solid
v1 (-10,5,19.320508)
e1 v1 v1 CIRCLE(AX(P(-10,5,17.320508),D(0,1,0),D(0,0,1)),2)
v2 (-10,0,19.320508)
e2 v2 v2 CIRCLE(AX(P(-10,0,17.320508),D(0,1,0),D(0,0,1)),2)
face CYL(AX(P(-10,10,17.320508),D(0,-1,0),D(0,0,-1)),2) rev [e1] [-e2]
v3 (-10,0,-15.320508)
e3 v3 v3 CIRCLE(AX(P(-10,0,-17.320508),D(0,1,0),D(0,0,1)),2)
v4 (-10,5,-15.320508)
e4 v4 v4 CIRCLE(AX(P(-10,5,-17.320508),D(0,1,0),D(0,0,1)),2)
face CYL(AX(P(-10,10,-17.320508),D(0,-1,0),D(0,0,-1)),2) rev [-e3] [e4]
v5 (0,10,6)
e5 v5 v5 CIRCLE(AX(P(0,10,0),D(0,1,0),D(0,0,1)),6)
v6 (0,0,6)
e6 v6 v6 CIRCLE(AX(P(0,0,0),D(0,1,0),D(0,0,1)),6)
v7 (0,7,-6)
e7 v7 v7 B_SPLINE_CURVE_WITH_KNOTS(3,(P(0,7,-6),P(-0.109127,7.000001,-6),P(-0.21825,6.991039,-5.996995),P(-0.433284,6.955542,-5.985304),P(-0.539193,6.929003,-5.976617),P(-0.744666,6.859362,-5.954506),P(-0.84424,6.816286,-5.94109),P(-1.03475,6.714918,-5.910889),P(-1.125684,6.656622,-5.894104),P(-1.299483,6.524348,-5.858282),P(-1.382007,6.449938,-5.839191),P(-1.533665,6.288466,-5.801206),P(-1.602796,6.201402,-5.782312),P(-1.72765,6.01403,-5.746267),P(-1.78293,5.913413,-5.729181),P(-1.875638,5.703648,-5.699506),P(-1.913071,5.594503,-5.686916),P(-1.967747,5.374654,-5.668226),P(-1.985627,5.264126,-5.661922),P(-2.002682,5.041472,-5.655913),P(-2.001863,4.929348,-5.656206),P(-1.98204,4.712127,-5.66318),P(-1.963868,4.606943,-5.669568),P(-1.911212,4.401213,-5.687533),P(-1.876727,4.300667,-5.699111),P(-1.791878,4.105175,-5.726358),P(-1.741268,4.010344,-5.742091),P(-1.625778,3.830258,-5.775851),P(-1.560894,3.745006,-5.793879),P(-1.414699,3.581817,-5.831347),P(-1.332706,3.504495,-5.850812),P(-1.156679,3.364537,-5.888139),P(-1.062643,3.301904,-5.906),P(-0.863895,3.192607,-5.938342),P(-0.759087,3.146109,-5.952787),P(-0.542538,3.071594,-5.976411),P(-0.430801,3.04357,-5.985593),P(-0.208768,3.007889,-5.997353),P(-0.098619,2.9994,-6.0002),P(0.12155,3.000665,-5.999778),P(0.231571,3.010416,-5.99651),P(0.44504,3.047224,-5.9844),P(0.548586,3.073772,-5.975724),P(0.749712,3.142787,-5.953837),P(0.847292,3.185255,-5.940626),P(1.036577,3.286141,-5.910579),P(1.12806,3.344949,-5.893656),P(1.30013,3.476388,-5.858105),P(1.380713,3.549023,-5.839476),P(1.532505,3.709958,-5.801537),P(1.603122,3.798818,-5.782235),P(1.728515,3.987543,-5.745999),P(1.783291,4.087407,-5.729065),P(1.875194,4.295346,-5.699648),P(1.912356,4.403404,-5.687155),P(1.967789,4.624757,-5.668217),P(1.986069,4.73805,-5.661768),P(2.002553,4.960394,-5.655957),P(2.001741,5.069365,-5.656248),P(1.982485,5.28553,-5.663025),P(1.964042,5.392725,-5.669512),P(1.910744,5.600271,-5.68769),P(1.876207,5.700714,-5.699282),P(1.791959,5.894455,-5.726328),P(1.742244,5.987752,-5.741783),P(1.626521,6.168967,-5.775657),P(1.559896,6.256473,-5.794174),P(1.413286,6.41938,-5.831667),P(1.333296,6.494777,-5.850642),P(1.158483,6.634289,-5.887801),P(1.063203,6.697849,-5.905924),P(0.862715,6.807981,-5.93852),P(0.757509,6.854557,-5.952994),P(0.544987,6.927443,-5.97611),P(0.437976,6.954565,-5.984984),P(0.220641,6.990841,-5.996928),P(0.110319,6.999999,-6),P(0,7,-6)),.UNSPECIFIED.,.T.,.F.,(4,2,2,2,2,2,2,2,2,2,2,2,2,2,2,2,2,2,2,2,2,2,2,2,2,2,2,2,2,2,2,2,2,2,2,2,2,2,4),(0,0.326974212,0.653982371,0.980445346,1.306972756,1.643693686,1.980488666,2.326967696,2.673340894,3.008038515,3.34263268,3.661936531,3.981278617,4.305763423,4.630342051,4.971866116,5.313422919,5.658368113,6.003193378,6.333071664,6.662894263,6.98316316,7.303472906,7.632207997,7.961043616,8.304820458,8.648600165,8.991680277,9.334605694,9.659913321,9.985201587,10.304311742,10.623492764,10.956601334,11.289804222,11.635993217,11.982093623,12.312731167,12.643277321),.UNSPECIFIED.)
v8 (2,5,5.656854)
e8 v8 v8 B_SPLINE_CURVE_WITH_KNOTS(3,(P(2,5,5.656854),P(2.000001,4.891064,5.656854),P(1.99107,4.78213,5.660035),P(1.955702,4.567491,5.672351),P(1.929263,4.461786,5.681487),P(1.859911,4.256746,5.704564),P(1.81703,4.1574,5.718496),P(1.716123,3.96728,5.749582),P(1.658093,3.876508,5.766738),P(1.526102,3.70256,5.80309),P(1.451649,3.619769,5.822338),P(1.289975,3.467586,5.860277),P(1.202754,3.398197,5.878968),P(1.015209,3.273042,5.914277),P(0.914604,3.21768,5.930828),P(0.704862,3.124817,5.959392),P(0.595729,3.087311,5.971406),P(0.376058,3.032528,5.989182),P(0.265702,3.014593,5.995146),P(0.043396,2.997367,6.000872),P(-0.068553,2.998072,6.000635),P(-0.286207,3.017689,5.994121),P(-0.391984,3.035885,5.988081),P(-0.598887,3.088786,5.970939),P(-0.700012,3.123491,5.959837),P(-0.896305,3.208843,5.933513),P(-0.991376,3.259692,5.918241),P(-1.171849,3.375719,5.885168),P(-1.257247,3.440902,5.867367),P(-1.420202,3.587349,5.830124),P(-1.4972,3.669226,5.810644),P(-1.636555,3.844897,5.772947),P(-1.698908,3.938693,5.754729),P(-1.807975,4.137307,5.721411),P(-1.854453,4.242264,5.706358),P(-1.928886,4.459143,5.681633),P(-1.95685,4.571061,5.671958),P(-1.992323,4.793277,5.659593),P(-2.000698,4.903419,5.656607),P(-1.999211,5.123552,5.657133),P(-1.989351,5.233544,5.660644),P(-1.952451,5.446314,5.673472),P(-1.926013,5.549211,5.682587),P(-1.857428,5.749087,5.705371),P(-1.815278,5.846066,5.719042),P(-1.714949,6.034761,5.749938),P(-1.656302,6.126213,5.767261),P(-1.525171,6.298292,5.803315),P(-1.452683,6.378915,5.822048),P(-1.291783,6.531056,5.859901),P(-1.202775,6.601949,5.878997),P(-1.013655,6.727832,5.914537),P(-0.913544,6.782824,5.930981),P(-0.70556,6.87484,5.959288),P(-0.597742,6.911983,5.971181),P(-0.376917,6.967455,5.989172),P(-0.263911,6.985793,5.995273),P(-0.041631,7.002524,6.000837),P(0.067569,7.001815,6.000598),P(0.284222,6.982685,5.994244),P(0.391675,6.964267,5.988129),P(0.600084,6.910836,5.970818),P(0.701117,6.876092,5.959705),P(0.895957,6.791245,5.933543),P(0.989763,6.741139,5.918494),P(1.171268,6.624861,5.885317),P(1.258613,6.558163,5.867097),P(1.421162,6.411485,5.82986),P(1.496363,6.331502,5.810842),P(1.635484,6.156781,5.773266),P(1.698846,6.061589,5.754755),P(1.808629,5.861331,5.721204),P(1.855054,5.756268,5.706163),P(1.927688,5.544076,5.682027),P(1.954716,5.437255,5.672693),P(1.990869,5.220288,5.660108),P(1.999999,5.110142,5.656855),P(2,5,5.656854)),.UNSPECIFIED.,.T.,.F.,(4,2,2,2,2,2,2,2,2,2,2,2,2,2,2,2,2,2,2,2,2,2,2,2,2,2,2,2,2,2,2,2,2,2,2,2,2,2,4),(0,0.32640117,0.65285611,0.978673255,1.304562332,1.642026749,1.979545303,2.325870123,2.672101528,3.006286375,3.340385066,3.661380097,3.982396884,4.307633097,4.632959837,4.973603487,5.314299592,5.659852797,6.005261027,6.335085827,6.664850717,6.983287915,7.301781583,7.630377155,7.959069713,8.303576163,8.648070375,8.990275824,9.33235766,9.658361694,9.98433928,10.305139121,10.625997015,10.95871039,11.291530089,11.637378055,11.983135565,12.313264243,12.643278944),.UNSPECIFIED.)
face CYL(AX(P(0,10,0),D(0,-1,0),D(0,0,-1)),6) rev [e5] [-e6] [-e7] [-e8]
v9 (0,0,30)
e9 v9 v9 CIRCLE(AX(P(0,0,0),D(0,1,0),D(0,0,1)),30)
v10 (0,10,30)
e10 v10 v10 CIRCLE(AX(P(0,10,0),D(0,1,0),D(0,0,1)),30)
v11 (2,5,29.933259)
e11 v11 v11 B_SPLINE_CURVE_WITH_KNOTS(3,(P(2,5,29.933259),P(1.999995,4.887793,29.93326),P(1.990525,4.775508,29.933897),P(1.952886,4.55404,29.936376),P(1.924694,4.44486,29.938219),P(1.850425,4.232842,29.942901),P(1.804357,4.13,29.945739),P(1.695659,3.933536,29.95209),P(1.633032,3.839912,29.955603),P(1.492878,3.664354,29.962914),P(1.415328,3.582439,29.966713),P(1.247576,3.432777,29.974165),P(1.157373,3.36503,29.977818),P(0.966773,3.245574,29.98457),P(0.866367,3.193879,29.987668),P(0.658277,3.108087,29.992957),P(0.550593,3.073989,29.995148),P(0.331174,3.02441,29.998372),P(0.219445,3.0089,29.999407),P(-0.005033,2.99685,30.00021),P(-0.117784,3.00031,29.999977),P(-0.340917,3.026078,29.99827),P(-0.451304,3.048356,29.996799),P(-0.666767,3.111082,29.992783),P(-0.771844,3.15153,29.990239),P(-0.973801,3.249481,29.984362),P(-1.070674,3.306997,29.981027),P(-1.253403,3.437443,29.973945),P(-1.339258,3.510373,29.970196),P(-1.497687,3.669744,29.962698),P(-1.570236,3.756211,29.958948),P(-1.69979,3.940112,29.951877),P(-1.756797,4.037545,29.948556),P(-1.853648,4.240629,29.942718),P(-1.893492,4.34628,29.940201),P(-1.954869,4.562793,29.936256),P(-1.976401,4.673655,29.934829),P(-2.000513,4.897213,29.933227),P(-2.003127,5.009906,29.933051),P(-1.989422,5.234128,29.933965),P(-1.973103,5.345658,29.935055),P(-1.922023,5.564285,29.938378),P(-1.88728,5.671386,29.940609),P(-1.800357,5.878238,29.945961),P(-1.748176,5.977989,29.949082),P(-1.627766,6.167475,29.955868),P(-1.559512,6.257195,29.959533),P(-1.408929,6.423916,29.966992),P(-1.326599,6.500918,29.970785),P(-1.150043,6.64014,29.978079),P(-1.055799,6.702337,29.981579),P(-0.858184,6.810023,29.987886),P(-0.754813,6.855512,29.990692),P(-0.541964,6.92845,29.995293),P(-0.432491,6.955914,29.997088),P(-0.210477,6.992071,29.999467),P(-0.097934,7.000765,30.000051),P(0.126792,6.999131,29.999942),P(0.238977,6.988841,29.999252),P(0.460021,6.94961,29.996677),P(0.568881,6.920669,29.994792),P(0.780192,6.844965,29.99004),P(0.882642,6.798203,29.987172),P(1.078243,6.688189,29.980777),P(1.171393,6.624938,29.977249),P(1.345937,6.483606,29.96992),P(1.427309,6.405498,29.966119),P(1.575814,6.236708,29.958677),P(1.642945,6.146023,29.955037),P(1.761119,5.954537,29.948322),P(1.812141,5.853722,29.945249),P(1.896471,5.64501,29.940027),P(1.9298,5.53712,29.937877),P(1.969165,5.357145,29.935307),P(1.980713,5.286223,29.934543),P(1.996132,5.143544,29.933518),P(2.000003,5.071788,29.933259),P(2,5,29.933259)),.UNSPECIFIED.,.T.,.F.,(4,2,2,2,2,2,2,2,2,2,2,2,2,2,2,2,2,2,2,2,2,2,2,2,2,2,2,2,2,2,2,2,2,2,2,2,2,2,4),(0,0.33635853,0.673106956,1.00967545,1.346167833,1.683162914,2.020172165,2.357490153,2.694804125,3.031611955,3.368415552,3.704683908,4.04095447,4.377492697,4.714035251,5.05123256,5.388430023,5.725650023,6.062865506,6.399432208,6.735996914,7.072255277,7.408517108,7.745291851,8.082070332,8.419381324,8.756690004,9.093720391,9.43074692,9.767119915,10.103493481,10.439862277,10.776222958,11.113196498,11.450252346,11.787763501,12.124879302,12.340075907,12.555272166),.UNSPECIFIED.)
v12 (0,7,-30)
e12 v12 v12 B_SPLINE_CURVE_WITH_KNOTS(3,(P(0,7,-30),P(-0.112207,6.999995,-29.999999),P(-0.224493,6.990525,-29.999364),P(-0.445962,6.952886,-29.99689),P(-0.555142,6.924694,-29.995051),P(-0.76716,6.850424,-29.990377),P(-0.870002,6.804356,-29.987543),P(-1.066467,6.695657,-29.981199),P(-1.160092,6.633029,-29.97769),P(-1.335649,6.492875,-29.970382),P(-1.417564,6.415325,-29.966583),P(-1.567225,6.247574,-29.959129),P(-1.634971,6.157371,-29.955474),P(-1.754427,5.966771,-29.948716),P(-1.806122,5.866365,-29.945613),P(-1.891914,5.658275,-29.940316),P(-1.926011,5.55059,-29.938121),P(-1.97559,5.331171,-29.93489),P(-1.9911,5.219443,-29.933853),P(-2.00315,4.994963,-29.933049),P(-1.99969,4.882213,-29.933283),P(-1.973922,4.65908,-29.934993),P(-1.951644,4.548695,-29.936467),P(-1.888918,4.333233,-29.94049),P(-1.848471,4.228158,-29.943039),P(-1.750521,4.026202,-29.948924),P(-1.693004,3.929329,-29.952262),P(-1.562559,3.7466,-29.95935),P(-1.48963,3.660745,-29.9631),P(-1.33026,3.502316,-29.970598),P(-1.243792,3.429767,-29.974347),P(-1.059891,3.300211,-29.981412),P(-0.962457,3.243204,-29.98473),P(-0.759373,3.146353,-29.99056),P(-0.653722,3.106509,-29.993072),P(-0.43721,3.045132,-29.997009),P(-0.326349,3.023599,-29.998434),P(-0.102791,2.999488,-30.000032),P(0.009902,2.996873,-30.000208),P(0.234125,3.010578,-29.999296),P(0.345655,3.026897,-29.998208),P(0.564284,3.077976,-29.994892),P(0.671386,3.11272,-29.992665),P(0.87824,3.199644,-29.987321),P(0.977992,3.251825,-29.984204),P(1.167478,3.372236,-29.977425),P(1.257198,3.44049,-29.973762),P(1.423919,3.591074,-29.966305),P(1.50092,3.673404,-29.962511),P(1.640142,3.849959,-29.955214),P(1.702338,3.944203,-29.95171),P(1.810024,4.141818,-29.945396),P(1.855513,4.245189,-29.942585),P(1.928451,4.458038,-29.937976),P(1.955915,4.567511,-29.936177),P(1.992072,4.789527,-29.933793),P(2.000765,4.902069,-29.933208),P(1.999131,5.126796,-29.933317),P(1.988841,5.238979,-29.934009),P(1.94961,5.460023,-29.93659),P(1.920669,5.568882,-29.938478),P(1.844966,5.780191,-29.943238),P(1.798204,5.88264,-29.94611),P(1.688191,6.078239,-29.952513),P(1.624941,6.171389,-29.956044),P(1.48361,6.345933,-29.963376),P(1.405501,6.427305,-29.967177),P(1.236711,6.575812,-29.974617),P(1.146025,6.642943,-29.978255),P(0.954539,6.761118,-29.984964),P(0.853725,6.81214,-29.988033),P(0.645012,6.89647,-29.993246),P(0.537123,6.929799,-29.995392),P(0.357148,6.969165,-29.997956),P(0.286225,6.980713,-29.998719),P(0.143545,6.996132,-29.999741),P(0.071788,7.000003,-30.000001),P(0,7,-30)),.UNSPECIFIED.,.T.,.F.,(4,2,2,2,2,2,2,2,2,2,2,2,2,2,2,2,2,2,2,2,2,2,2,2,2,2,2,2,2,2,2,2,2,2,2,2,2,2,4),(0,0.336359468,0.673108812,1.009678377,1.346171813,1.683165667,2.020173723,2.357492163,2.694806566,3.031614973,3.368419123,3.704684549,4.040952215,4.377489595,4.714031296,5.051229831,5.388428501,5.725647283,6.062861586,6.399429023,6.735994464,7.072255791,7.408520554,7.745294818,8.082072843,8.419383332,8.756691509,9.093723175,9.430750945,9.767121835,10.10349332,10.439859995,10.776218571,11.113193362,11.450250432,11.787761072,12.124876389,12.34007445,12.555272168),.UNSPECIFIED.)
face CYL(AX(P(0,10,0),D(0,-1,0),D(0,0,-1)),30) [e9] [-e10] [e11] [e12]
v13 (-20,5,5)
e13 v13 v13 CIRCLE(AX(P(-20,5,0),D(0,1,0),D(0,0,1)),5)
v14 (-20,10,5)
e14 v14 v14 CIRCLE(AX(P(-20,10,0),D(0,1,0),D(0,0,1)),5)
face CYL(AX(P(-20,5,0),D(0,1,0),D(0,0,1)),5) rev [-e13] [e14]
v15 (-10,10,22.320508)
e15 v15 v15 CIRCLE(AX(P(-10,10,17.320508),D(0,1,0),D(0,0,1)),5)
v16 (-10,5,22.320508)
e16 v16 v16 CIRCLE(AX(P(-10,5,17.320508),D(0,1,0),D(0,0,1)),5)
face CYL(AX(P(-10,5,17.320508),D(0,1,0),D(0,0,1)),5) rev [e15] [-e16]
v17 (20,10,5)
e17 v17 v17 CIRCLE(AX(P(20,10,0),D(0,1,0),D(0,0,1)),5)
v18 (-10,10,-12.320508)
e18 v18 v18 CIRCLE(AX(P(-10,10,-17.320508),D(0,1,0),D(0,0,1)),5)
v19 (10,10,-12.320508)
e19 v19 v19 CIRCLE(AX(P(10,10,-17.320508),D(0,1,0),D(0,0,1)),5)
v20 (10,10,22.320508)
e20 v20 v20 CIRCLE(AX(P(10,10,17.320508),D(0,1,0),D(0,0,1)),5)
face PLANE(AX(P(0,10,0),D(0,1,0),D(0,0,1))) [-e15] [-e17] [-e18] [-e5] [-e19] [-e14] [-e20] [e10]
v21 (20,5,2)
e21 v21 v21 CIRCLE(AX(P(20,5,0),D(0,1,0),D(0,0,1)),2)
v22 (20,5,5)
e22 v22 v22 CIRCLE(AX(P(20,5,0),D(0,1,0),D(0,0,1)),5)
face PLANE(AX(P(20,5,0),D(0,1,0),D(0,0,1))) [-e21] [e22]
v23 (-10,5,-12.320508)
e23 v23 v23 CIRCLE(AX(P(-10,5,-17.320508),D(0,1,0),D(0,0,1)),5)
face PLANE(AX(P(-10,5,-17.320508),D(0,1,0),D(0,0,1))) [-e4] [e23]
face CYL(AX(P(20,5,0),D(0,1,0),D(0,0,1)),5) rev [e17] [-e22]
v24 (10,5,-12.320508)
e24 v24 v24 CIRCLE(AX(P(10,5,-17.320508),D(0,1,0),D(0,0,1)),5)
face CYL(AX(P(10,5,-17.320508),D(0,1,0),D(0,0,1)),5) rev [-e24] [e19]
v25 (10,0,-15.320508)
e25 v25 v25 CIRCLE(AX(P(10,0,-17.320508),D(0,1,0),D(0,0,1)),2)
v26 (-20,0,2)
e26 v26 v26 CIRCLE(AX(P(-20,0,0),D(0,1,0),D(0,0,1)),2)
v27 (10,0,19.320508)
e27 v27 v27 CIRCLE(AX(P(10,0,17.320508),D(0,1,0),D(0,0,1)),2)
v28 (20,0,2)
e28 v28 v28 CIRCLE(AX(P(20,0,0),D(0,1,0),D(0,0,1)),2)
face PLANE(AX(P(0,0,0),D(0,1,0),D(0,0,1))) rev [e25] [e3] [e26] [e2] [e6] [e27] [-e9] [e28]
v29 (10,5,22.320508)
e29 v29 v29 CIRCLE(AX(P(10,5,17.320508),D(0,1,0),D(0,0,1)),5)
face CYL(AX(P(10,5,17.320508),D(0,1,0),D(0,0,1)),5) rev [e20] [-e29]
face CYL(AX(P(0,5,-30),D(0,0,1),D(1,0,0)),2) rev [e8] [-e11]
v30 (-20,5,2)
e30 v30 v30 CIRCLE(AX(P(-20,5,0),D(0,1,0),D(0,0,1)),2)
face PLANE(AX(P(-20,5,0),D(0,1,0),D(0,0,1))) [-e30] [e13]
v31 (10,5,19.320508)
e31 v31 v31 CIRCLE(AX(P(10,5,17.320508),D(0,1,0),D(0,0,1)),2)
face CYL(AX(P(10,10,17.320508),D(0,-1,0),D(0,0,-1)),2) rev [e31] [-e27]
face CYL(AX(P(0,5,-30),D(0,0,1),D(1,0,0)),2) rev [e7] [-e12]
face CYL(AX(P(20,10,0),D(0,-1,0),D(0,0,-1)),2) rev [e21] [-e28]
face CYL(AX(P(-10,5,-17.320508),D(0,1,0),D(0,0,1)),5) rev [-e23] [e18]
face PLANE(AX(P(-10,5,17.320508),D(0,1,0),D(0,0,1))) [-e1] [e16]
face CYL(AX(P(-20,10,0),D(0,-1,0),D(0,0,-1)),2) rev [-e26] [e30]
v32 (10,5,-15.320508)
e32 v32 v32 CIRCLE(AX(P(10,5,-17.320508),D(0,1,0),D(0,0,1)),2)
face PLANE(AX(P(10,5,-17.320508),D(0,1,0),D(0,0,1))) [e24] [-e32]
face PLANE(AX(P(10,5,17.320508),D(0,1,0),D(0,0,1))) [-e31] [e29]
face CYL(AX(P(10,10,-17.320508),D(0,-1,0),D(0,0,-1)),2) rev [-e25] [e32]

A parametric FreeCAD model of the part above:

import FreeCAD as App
import Part
import Sketcher

V = App.Vector

doc = App.newDocument("Part")
body = doc.addObject("PartDesign::Body", "Body")

sketch1 = doc.addObject("Sketcher::SketchObject", "Sketch")
body.addObject(sketch1)
sketch1.AttachmentSupport = (doc.XZ_Plane, [""])
sketch1.MapMode = "FlatFace"
sketch1.addGeometry([
    Part.Circle(V(0, 0, 0), V(0, 0, 1), 30),
    Part.Circle(V(-10, 17.320508, 0), V(0, 0, 1), 2),
    Part.Circle(V(10, 17.320508, 0), V(0, 0, 1), 2),
    Part.Circle(V(-20, 0, 0), V(0, 0, 1), 2),
    Part.Circle(V(-10, -17.320508, 0), V(0, 0, 1), 2),
    Part.Circle(V(0, 0, 0), V(0, 0, 1), 6),
    Part.Circle(V(20, 0, 0), V(0, 0, 1), 2),
    Part.Circle(V(10, -17.320508, 0), V(0, 0, 1), 2),
], False)
sketch1.addConstraint([
    Sketcher.Constraint("Coincident", 0, 3, -1, 1),
    Sketcher.Constraint("Coincident", 5, 3, -1, 1),
    Sketcher.Constraint("Equal", 1, 2),
    Sketcher.Constraint("Equal", 2, 3),
    Sketcher.Constraint("Equal", 3, 4),
    Sketcher.Constraint("Equal", 4, 6),
    Sketcher.Constraint("Equal", 6, 7),
    Sketcher.Constraint("Symmetric", 2, 3, 4, 3, -1, 1),
    Sketcher.Constraint("Symmetric", 3, 3, 6, 3, -1, 1),
    Sketcher.Constraint("Symmetric", 1, 3, 7, 3, -1, 1),
    Sketcher.Constraint("Symmetric", 1, 3, 2, 3, -2),
    Sketcher.Constraint("PointOnObject", 3, 3, -1),
    Sketcher.Constraint("Diameter", 0, 60.0),
    Sketcher.Constraint("Diameter", 1, 4.0),
    Sketcher.Constraint("Diameter", 5, 12.0),
    Sketcher.Constraint("DistanceX", 1, 3, -1, 1, 10.0),
    Sketcher.Constraint("DistanceX", 3, 3, -1, 1, 20.0),
    Sketcher.Constraint("DistanceY", -1, 1, 1, 3, 17.320508),
])
pad1 = doc.addObject("PartDesign::Pad", "Pad")
body.addObject(pad1)
pad1.Profile = sketch1
pad1.Length = 10
pad1.Reversed = True

sketch2 = doc.addObject("Sketcher::SketchObject", "Sketch001")
body.addObject(sketch2)
sketch2.AttachmentSupport = (doc.XY_Plane, [""])
sketch2.MapMode = "FlatFace"
sketch2.addGeometry(Part.Circle(V(0, 5, 0), V(0, 0, 1), 2), False)
sketch2.addConstraint([
    Sketcher.Constraint("PointOnObject", 0, 3, -2),
    Sketcher.Constraint("Diameter", 0, 4.0),
    Sketcher.Constraint("DistanceY", -1, 1, 0, 3, 5.0),
])
pocket1 = doc.addObject("PartDesign::Pocket", "Pocket")
body.addObject(pocket1)
pocket1.Profile = sketch2
pocket1.Type = "ThroughAll"
pocket1.Midplane = True

sketch3 = doc.addObject("Sketcher::SketchObject", "Sketch002")
body.addObject(sketch3)
sketch3.AttachmentSupport = (doc.XZ_Plane, [""])
sketch3.MapMode = "FlatFace"
sketch3.AttachmentOffset = App.Placement(V(0, 0, -10), App.Rotation())
sketch3.addGeometry([
    Part.Circle(V(-10, -17.320508, 0), V(0, 0, 1), 5),
    Part.Circle(V(10, -17.320508, 0), V(0, 0, 1), 5),
    Part.Circle(V(20, 0, 0), V(0, 0, 1), 5),
    Part.Circle(V(10, 17.320508, 0), V(0, 0, 1), 5),
    Part.Circle(V(-10, 17.320508, 0), V(0, 0, 1), 5),
    Part.Circle(V(-20, 0, 0), V(0, 0, 1), 5),
], False)
sketch3.addConstraint([
    Sketcher.Constraint("Equal", 0, 1),
    Sketcher.Constraint("Equal", 1, 2),
    Sketcher.Constraint("Equal", 2, 3),
    Sketcher.Constraint("Equal", 3, 4),
    Sketcher.Constraint("Equal", 4, 5),
    Sketcher.Constraint("Symmetric", 0, 3, 3, 3, -1, 1),
    Sketcher.Constraint("Symmetric", 1, 3, 4, 3, -1, 1),
    Sketcher.Constraint("Symmetric", 2, 3, 5, 3, -1, 1),
    Sketcher.Constraint("Symmetric", 0, 3, 1, 3, -2),
    Sketcher.Constraint("PointOnObject", 2, 3, -1),
    Sketcher.Constraint("Diameter", 0, 10.0),
    Sketcher.Constraint("DistanceX", 0, 3, -1, 1, 10.0),
    Sketcher.Constraint("DistanceX", -1, 1, 2, 3, 20.0),
    Sketcher.Constraint("DistanceY", 0, 3, -1, 1, 17.320508),
])
pocket2 = doc.addObject("PartDesign::Pocket", "Pocket001")
body.addObject(pocket2)
pocket2.Profile = sketch3
pocket2.Length = 5
pocket2.Reversed = True

doc.recompute()
